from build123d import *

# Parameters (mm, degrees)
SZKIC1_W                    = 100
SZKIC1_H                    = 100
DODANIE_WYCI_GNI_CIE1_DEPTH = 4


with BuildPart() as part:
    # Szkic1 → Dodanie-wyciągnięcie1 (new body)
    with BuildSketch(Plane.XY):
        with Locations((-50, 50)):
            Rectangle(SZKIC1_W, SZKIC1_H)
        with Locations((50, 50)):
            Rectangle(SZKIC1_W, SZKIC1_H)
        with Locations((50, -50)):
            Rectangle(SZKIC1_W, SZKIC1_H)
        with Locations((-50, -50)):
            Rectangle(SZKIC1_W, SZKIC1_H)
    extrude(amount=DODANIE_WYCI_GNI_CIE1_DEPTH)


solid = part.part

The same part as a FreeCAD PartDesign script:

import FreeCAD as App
import Part
import Sketcher


def add_polygon(sketch, points):
    """Adds a closed chain of lines whose ends are joined by coincident constraints."""
    first, n = sketch.GeometryCount, len(points)
    for a, b in zip(points, points[1:] + points[:1]):
        sketch.addGeometry(Part.LineSegment(App.Vector(*a, 0), App.Vector(*b, 0)), False)
    for i in range(n):
        sketch.addConstraint(Sketcher.Constraint("Coincident", first + i, 2, first + (i + 1) % n, 1))

doc = App.newDocument("Part")
body = doc.addObject("PartDesign::Body", "Body")

sketch1 = body.newObject("Sketcher::SketchObject", "Sketch")
sketch1.AttachmentSupport = (doc.getObject("XY_Plane"), [""])
sketch1.MapMode = "FlatFace"
add_polygon(sketch1, [(-100, 100), (-100, -100), (100, -100), (100, 100)])
sketch1.addConstraint([
    Sketcher.Constraint("Vertical", 0),
    Sketcher.Constraint("Horizontal", 1),
    Sketcher.Constraint("Vertical", 2),
    Sketcher.Constraint("Horizontal", 3),
    Sketcher.Constraint("Symmetric", 0, 2, 2, 2, -1, 1),
    Sketcher.Constraint("Equal", 3, 0),
    Sketcher.Constraint("DistanceX", 1, 1, 1, 2, 200.0),
])
pad1 = body.newObject("PartDesign::Pad", "Pad")
pad1.Profile = sketch1
pad1.Length = 4

doc.recompute()
